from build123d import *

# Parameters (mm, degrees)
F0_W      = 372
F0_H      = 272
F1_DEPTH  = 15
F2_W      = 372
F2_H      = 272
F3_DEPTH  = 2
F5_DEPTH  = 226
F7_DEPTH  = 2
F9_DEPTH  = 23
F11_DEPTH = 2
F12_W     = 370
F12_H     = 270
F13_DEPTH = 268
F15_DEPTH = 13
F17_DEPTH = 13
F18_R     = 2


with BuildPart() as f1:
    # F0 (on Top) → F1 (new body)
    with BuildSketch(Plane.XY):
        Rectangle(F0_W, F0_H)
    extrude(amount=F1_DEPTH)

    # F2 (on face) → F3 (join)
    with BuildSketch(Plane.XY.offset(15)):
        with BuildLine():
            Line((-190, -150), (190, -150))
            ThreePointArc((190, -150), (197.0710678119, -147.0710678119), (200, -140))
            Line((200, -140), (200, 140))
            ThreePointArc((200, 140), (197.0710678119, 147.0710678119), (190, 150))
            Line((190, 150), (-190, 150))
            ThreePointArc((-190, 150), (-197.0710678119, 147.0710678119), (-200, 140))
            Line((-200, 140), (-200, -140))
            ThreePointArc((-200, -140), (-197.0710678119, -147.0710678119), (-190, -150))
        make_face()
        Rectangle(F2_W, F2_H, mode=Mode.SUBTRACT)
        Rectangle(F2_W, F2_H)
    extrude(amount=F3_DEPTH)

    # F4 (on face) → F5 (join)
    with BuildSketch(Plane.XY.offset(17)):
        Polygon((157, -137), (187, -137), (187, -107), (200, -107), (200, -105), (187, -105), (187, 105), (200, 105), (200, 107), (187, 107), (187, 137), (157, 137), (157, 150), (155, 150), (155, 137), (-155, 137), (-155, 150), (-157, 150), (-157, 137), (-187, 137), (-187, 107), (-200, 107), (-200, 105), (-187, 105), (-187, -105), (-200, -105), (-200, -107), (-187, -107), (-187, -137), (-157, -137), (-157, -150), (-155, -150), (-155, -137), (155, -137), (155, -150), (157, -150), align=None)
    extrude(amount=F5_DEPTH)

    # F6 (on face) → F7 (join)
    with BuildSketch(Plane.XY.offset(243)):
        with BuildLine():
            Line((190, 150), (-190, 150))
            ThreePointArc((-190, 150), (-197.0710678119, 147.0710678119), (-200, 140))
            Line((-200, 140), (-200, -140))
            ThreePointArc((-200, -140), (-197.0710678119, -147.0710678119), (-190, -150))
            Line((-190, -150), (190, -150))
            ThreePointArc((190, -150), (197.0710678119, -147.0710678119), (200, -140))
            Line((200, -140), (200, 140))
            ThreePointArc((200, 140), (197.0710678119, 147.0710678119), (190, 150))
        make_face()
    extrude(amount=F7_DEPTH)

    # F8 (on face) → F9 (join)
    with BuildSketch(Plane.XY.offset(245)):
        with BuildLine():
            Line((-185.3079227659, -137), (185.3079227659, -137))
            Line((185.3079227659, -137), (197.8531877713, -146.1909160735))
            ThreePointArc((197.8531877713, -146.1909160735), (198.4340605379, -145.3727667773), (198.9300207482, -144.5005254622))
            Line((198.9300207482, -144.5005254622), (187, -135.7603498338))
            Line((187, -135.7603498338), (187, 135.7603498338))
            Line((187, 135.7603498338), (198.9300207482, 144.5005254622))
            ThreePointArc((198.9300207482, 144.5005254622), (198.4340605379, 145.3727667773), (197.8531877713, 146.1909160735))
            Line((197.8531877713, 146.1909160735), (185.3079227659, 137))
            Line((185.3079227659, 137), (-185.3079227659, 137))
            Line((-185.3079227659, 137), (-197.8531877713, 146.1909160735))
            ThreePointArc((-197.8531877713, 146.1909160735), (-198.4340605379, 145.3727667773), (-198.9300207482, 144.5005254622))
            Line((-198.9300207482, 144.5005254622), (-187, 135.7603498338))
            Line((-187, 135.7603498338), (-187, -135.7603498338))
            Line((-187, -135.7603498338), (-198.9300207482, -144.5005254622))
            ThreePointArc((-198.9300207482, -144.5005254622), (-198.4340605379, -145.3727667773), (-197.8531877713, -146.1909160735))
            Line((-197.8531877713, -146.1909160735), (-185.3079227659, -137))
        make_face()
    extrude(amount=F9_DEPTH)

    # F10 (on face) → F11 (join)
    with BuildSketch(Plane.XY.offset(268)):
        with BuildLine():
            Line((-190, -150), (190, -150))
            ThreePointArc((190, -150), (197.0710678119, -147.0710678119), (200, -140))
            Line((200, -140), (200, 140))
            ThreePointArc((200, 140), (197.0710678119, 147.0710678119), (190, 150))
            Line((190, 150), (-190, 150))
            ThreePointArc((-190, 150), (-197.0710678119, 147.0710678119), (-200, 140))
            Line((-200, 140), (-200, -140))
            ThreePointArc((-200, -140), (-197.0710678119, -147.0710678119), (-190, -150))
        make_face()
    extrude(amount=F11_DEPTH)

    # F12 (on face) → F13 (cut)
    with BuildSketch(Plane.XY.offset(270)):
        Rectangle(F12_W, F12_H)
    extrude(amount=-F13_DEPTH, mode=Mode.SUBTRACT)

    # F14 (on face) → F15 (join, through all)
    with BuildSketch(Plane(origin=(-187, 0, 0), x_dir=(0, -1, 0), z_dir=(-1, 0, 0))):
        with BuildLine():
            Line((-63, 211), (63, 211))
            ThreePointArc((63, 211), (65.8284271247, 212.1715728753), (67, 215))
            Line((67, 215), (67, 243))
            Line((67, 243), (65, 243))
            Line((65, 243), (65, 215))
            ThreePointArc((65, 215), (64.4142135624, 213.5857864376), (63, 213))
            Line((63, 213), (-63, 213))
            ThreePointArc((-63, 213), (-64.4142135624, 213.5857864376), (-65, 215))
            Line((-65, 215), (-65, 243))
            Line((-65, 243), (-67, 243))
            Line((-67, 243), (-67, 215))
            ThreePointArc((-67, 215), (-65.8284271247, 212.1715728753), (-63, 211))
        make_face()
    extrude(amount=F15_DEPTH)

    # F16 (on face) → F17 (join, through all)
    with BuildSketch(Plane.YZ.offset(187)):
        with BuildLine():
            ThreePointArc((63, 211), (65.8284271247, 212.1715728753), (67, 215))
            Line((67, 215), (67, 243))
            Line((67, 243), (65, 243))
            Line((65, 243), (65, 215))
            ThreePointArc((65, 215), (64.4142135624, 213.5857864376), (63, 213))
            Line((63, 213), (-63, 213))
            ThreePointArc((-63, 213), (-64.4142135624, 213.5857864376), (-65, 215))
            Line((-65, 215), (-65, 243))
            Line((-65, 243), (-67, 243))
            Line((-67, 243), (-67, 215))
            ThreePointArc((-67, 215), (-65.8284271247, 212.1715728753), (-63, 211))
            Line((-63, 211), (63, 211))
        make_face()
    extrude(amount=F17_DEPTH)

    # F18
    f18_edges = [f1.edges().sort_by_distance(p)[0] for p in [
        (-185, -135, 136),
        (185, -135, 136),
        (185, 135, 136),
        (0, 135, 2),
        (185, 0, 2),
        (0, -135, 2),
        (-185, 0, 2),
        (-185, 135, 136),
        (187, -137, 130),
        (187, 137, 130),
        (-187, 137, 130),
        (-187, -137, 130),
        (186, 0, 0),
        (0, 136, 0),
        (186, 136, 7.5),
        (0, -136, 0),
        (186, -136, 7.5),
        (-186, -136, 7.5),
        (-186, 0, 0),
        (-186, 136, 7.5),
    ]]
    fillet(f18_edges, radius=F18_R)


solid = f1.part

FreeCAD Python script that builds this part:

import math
import FreeCAD as App
import Part
import Sketcher
from FreeCAD import Vector
Q = App.Units.Quantity


def edges_at(feature, points):
    """Names of the edges that pass closest to the given points."""
    edges = feature.Shape.Edges
    near = lambda p: min(range(len(edges)), key=lambda i: edges[i].distToShape(Part.Vertex(*p))[0])
    return sorted({f"Edge{near(p) + 1}" for p in points})

doc = App.newDocument("Part")
body = doc.addObject("PartDesign::Body", "Body")

sketch1 = body.newObject("Sketcher::SketchObject", "Sketch")
sketch1.AttachmentSupport = (doc.getObject("XY_Plane"), [""])
sketch1.MapMode = "FlatFace"
sketch1.addGeometry([
    Part.LineSegment(Vector(-186, 136, 0), Vector(-186, -136, 0)),
    Part.LineSegment(Vector(-186, -136, 0), Vector(186, -136, 0)),
    Part.LineSegment(Vector(186, -136, 0), Vector(186, 136, 0)),
    Part.LineSegment(Vector(186, 136, 0), Vector(-186, 136, 0)),
], False)
sketch1.addConstraint([
    Sketcher.Constraint("Coincident", 0, 2, 1, 1),
    Sketcher.Constraint("Coincident", 1, 2, 2, 1),
    Sketcher.Constraint("Coincident", 2, 2, 3, 1),
    Sketcher.Constraint("Coincident", 3, 2, 0, 1),
    Sketcher.Constraint("Vertical", 0),
    Sketcher.Constraint("Horizontal", 1),
    Sketcher.Constraint("Vertical", 2),
    Sketcher.Constraint("Horizontal", 3),
    Sketcher.Constraint("Symmetric", 0, 2, 2, 2, -1, 1),
    Sketcher.Constraint("DistanceX", 1, 1, 1, 2, Q("372 mm")),
    Sketcher.Constraint("DistanceY", 0, 2, 0, 1, Q("272 mm")),
])
pad1 = body.newObject("PartDesign::Pad", "Pad")
pad1.Profile = sketch1
pad1.Length = 15

sketch2 = body.newObject("Sketcher::SketchObject", "Sketch001")
sketch2.AttachmentSupport = (doc.getObject("XY_Plane"), [""])
sketch2.MapMode = "FlatFace"
sketch2.AttachmentOffset = App.Placement(Vector(0, 0, 15), App.Rotation())
sketch2.addGeometry([
    Part.LineSegment(Vector(-190, -150, 0), Vector(190, -150, 0)),
    Part.ArcOfCircle(Part.Circle(Vector(190, -140, 0), Vector(0, 0, 1), 10), math.radians(-90), math.radians(0)),
    Part.LineSegment(Vector(200, -140, 0), Vector(200, 140, 0)),
    Part.ArcOfCircle(Part.Circle(Vector(190, 140, 0), Vector(0, 0, 1), 10), math.radians(0), math.radians(90)),
    Part.LineSegment(Vector(190, 150, 0), Vector(-190, 150, 0)),
    Part.ArcOfCircle(Part.Circle(Vector(-190, 140, 0), Vector(0, 0, 1), 10), math.radians(90), math.radians(180)),
    Part.LineSegment(Vector(-200, 140, 0), Vector(-200, -140, 0)),
    Part.ArcOfCircle(Part.Circle(Vector(-190, -140, 0), Vector(0, 0, 1), 10), math.radians(180), math.radians(270)),
], False)
sketch2.addConstraint([
    Sketcher.Constraint("Tangent", 0, 2, 1, 1),
    Sketcher.Constraint("Tangent", 1, 2, 2, 1),
    Sketcher.Constraint("Tangent", 2, 2, 3, 1),
    Sketcher.Constraint("Tangent", 3, 2, 4, 1),
    Sketcher.Constraint("Tangent", 4, 2, 5, 1),
    Sketcher.Constraint("Tangent", 5, 2, 6, 1),
    Sketcher.Constraint("Tangent", 6, 2, 7, 1),
    Sketcher.Constraint("Tangent", 7, 2, 0, 1),
    Sketcher.Constraint("Horizontal", 0),
    Sketcher.Constraint("Vertical", 2),
    Sketcher.Constraint("Horizontal", 4),
    Sketcher.Constraint("Vertical", 6),
    Sketcher.Constraint("Equal", 1, 3),
    Sketcher.Constraint("Equal", 3, 5),
    Sketcher.Constraint("Equal", 5, 7),
    Sketcher.Constraint("Symmetric", 1, 3, 5, 3, -1, 1),
    Sketcher.Constraint("Radius", 1, Q("10 mm")),
    Sketcher.Constraint("DistanceX", 0, 1, 0, 2, Q("380 mm")),
    Sketcher.Constraint("DistanceY", 2, 1, 2, 2, Q("280 mm")),
])
pad2 = body.newObject("PartDesign::Pad", "Pad001")
pad2.Profile = sketch2
pad2.Length = 2

sketch3 = body.newObject("Sketcher::SketchObject", "Sketch002")
sketch3.AttachmentSupport = (doc.getObject("XY_Plane"), [""])
sketch3.MapMode = "FlatFace"
sketch3.AttachmentOffset = App.Placement(Vector(0, 0, 17), App.Rotation())
sketch3.addGeometry([
    Part.LineSegment(Vector(157, -137, 0), Vector(187, -137, 0)),
    Part.LineSegment(Vector(187, -137, 0), Vector(187, -107, 0)),
    Part.LineSegment(Vector(187, -107, 0), Vector(200, -107, 0)),
    Part.LineSegment(Vector(200, -107, 0), Vector(200, -105, 0)),
    Part.LineSegment(Vector(200, -105, 0), Vector(187, -105, 0)),
    Part.LineSegment(Vector(187, -105, 0), Vector(187, 105, 0)),
    Part.LineSegment(Vector(187, 105, 0), Vector(200, 105, 0)),
    Part.LineSegment(Vector(200, 105, 0), Vector(200, 107, 0)),
    Part.LineSegment(Vector(200, 107, 0), Vector(187, 107, 0)),
    Part.LineSegment(Vector(187, 107, 0), Vector(187, 137, 0)),
    Part.LineSegment(Vector(187, 137, 0), Vector(157, 137, 0)),
    Part.LineSegment(Vector(157, 137, 0), Vector(157, 150, 0)),
    Part.LineSegment(Vector(157, 150, 0), Vector(155, 150, 0)),
    Part.LineSegment(Vector(155, 150, 0), Vector(155, 137, 0)),
    Part.LineSegment(Vector(155, 137, 0), Vector(-155, 137, 0)),
    Part.LineSegment(Vector(-155, 137, 0), Vector(-155, 150, 0)),
    Part.LineSegment(Vector(-155, 150, 0), Vector(-157, 150, 0)),
    Part.LineSegment(Vector(-157, 150, 0), Vector(-157, 137, 0)),
    Part.LineSegment(Vector(-157, 137, 0), Vector(-187, 137, 0)),
    Part.LineSegment(Vector(-187, 137, 0), Vector(-187, 107, 0)),
    Part.LineSegment(Vector(-187, 107, 0), Vector(-200, 107, 0)),
    Part.LineSegment(Vector(-200, 107, 0), Vector(-200, 105, 0)),
    Part.LineSegment(Vector(-200, 105, 0), Vector(-187, 105, 0)),
    Part.LineSegment(Vector(-187, 105, 0), Vector(-187, -105, 0)),
    Part.LineSegment(Vector(-187, -105, 0), Vector(-200, -105, 0)),
    Part.LineSegment(Vector(-200, -105, 0), Vector(-200, -107, 0)),
    Part.LineSegment(Vector(-200, -107, 0), Vector(-187, -107, 0)),
    Part.LineSegment(Vector(-187, -107, 0), Vector(-187, -137, 0)),
    Part.LineSegment(Vector(-187, -137, 0), Vector(-157, -137, 0)),
    Part.LineSegment(Vector(-157, -137, 0), Vector(-157, -150, 0)),
    Part.LineSegment(Vector(-157, -150, 0), Vector(-155, -150, 0)),
    Part.LineSegment(Vector(-155, -150, 0), Vector(-155, -137, 0)),
    Part.LineSegment(Vector(-155, -137, 0), Vector(155, -137, 0)),
    Part.LineSegment(Vector(155, -137, 0), Vector(155, -150, 0)),
    Part.LineSegment(Vector(155, -150, 0), Vector(157, -150, 0)),
    Part.LineSegment(Vector(157, -150, 0), Vector(157, -137, 0)),
], False)
sketch3.addConstraint([
    Sketcher.Constraint("Coincident", 0, 2, 1, 1),
    Sketcher.Constraint("Coincident", 1, 2, 2, 1),
    Sketcher.Constraint("Coincident", 2, 2, 3, 1),
    Sketcher.Constraint("Coincident", 3, 2, 4, 1),
    Sketcher.Constraint("Coincident", 4, 2, 5, 1),
    Sketcher.Constraint("Coincident", 5, 2, 6, 1),
    Sketcher.Constraint("Coincident", 6, 2, 7, 1),
    Sketcher.Constraint("Coincident", 7, 2, 8, 1),
    Sketcher.Constraint("Coincident", 8, 2, 9, 1),
    Sketcher.Constraint("Coincident", 9, 2, 10, 1),
    Sketcher.Constraint("Coincident", 10, 2, 11, 1),
    Sketcher.Constraint("Coincident", 11, 2, 12, 1),
    Sketcher.Constraint("Coincident", 12, 2, 13, 1),
    Sketcher.Constraint("Coincident", 13, 2, 14, 1),
    Sketcher.Constraint("Coincident", 14, 2, 15, 1),
    Sketcher.Constraint("Coincident", 15, 2, 16, 1),
    Sketcher.Constraint("Coincident", 16, 2, 17, 1),
    Sketcher.Constraint("Coincident", 17, 2, 18, 1),
    Sketcher.Constraint("Coincident", 18, 2, 19, 1),
    Sketcher.Constraint("Coincident", 19, 2, 20, 1),
    Sketcher.Constraint("Coincident", 20, 2, 21, 1),
    Sketcher.Constraint("Coincident", 21, 2, 22, 1),
    Sketcher.Constraint("Coincident", 22, 2, 23, 1),
    Sketcher.Constraint("Coincident", 23, 2, 24, 1),
    Sketcher.Constraint("Coincident", 24, 2, 25, 1),
    Sketcher.Constraint("Coincident", 25, 2, 26, 1),
    Sketcher.Constraint("Coincident", 26, 2, 27, 1),
    Sketcher.Constraint("Coincident", 27, 2, 28, 1),
    Sketcher.Constraint("Coincident", 28, 2, 29, 1),
    Sketcher.Constraint("Coincident", 29, 2, 30, 1),
    Sketcher.Constraint("Coincident", 30, 2, 31, 1),
    Sketcher.Constraint("Coincident", 31, 2, 32, 1),
    Sketcher.Constraint("Coincident", 32, 2, 33, 1),
    Sketcher.Constraint("Coincident", 33, 2, 34, 1),
    Sketcher.Constraint("Coincident", 34, 2, 35, 1),
    Sketcher.Constraint("Coincident", 35, 2, 0, 1),
    Sketcher.Constraint("Horizontal", 0),
    Sketcher.Constraint("Vertical", 1),
    Sketcher.Constraint("Horizontal", 2),
    Sketcher.Constraint("Vertical", 3),
    Sketcher.Constraint("Horizontal", 4),
    Sketcher.Constraint("Vertical", 5),
    Sketcher.Constraint("Horizontal", 6),
    Sketcher.Constraint("Vertical", 7),
    Sketcher.Constraint("Horizontal", 8),
    Sketcher.Constraint("Vertical", 9),
    Sketcher.Constraint("Horizontal", 10),
    Sketcher.Constraint("Vertical", 11),
    Sketcher.Constraint("Horizontal", 12),
    Sketcher.Constraint("Vertical", 13),
    Sketcher.Constraint("Horizontal", 14),
    Sketcher.Constraint("Vertical", 15),
    Sketcher.Constraint("Horizontal", 16),
    Sketcher.Constraint("Vertical", 17),
    Sketcher.Constraint("Horizontal", 18),
    Sketcher.Constraint("Vertical", 19),
    Sketcher.Constraint("Horizontal", 20),
    Sketcher.Constraint("Vertical", 21),
    Sketcher.Constraint("Horizontal", 22),
    Sketcher.Constraint("Vertical", 23),
    Sketcher.Constraint("Horizontal", 24),
    Sketcher.Constraint("Vertical", 25),
    Sketcher.Constraint("Horizontal", 26),
    Sketcher.Constraint("Vertical", 27),
    Sketcher.Constraint("Horizontal", 28),
    Sketcher.Constraint("Vertical", 29),
    Sketcher.Constraint("Horizontal", 30),
    Sketcher.Constraint("Vertical", 31),
    Sketcher.Constraint("Horizontal", 32),
    Sketcher.Constraint("Vertical", 33),
    Sketcher.Constraint("Horizontal", 34),
    Sketcher.Constraint("Vertical", 35),
    Sketcher.Constraint("Symmetric", 0, 2, 18, 2, -1, 1),
    Sketcher.Constraint("Symmetric", 2, 2, 20, 2, -1, 1),
    Sketcher.Constraint("Symmetric", 4, 2, 22, 2, -1, 1),
    Sketcher.Constraint("Symmetric", 6, 2, 24, 2, -1, 1),
    Sketcher.Constraint("Symmetric", 8, 2, 26, 2, -1, 1),
    Sketcher.Constraint("Symmetric", 10, 2, 28, 2, -1, 1),
    Sketcher.Constraint("Symmetric", 12, 2, 30, 2, -1, 1),
    Sketcher.Constraint("Symmetric", 14, 2, 32, 2, -1, 1),
    Sketcher.Constraint("Symmetric", 16, 2, 34, 2, -1, 1),
    Sketcher.Constraint("Symmetric", 12, 2, 15, 2, -2),
    Sketcher.Constraint("Symmetric", 10, 2, 17, 2, -2),
    Sketcher.Constraint("Symmetric", 8, 2, 19, 2, -2),
    Sketcher.Constraint("Symmetric", 6, 2, 21, 2, -2),
    Sketcher.Constraint("Horizontal", 10, 2, 13, 2),
    Sketcher.Constraint("Vertical", 1, 2, 4, 2),
    Sketcher.Constraint("Equal", 28, 1),
    Sketcher.Constraint("Equal", 34, 3),
    Sketcher.Constraint("Equal", 26, 11),
    Sketcher.Constraint("DistanceX", 0, 1, 0, 2, Q("30 mm")),
    Sketcher.Constraint("DistanceX", 2, 1, 2, 2, Q("13 mm")),
    Sketcher.Constraint("DistanceX", 12, 2, 12, 1, Q("2 mm")),
    Sketcher.Constraint("DistanceX", 14, 2, 14, 1, Q("310 mm")),
    Sketcher.Constraint("DistanceY", 5, 1, 5, 2, Q("210 mm")),
])
pad3 = body.newObject("PartDesign::Pad", "Pad002")
pad3.Profile = sketch3
pad3.Length = 226

sketch4 = body.newObject("Sketcher::SketchObject", "Sketch003")
sketch4.AttachmentSupport = (doc.getObject("XY_Plane"), [""])
sketch4.MapMode = "FlatFace"
sketch4.AttachmentOffset = App.Placement(Vector(0, 0, 243), App.Rotation())
sketch4.addGeometry([
    Part.LineSegment(Vector(190, 150, 0), Vector(-190, 150, 0)),
    Part.ArcOfCircle(Part.Circle(Vector(-190, 140, 0), Vector(0, 0, 1), 10), math.radians(90), math.radians(180)),
    Part.LineSegment(Vector(-200, 140, 0), Vector(-200, -140, 0)),
    Part.ArcOfCircle(Part.Circle(Vector(-190, -140, 0), Vector(0, 0, 1), 10), math.radians(180), math.radians(270)),
    Part.LineSegment(Vector(-190, -150, 0), Vector(190, -150, 0)),
    Part.ArcOfCircle(Part.Circle(Vector(190, -140, 0), Vector(0, 0, 1), 10), math.radians(-90), math.radians(0)),
    Part.LineSegment(Vector(200, -140, 0), Vector(200, 140, 0)),
    Part.ArcOfCircle(Part.Circle(Vector(190, 140, 0), Vector(0, 0, 1), 10), math.radians(0), math.radians(90)),
], False)
sketch4.addConstraint([
    Sketcher.Constraint("Tangent", 0, 2, 1, 1),
    Sketcher.Constraint("Tangent", 1, 2, 2, 1),
    Sketcher.Constraint("Tangent", 2, 2, 3, 1),
    Sketcher.Constraint("Tangent", 3, 2, 4, 1),
    Sketcher.Constraint("Tangent", 4, 2, 5, 1),
    Sketcher.Constraint("Tangent", 5, 2, 6, 1),
    Sketcher.Constraint("Tangent", 6, 2, 7, 1),
    Sketcher.Constraint("Tangent", 7, 2, 0, 1),
    Sketcher.Constraint("Horizontal", 0),
    Sketcher.Constraint("Vertical", 2),
    Sketcher.Constraint("Horizontal", 4),
    Sketcher.Constraint("Vertical", 6),
    Sketcher.Constraint("Equal", 1, 3),
    Sketcher.Constraint("Equal", 3, 5),
    Sketcher.Constraint("Equal", 5, 7),
    Sketcher.Constraint("Symmetric", 1, 3, 5, 3, -1, 1),
    Sketcher.Constraint("Radius", 1, Q("10 mm")),
    Sketcher.Constraint("DistanceX", 0, 2, 0, 1, Q("380 mm")),
    Sketcher.Constraint("DistanceY", 2, 2, 2, 1, Q("280 mm")),
])
pad4 = body.newObject("PartDesign::Pad", "Pad003")
pad4.Profile = sketch4
pad4.Length = 2

sketch5 = body.newObject("Sketcher::SketchObject", "Sketch004")
sketch5.AttachmentSupport = (doc.getObject("XY_Plane"), [""])
sketch5.MapMode = "FlatFace"
sketch5.AttachmentOffset = App.Placement(Vector(0, 0, 245), App.Rotation())
sketch5.addGeometry([
    Part.LineSegment(Vector(-185.3, -137, 0), Vector(185.3, -137, 0)),
    Part.LineSegment(Vector(185.3, -137, 0), Vector(197.9, -146.2, 0)),
    Part.ArcOfCircle(Part.Circle(Vector(190, -140, 0), Vector(0, 0, 1), 10), math.radians(-38.25), math.radians(-26.75)),
    Part.LineSegment(Vector(198.9, -144.5, 0), Vector(187, -135.8, 0)),
    Part.LineSegment(Vector(187, -135.8, 0), Vector(187, 135.8, 0)),
    Part.LineSegment(Vector(187, 135.8, 0), Vector(198.9, 144.5, 0)),
    Part.ArcOfCircle(Part.Circle(Vector(190, 140, 0), Vector(0, 0, 1), 10), math.radians(26.75), math.radians(38.25)),
    Part.LineSegment(Vector(197.9, 146.2, 0), Vector(185.3, 137, 0)),
    Part.LineSegment(Vector(185.3, 137, 0), Vector(-185.3, 137, 0)),
    Part.LineSegment(Vector(-185.3, 137, 0), Vector(-197.9, 146.2, 0)),
    Part.ArcOfCircle(Part.Circle(Vector(-190, 140, 0), Vector(0, 0, 1), 10), math.radians(141.75), math.radians(153.25)),
    Part.LineSegment(Vector(-198.9, 144.5, 0), Vector(-187, 135.8, 0)),
    Part.LineSegment(Vector(-187, 135.8, 0), Vector(-187, -135.8, 0)),
    Part.LineSegment(Vector(-187, -135.8, 0), Vector(-198.9, -144.5, 0)),
    Part.ArcOfCircle(Part.Circle(Vector(-190, -140, 0), Vector(0, 0, 1), 10), math.radians(-153.25), math.radians(-141.75)),
    Part.LineSegment(Vector(-197.9, -146.2, 0), Vector(-185.3, -137, 0)),
], False)
sketch5.addConstraint([
    Sketcher.Constraint("Coincident", 0, 2, 1, 1),
    Sketcher.Constraint("Coincident", 1, 2, 2, 1),
    Sketcher.Constraint("Coincident", 2, 2, 3, 1),
    Sketcher.Constraint("Coincident", 3, 2, 4, 1),
    Sketcher.Constraint("Coincident", 4, 2, 5, 1),
    Sketcher.Constraint("Coincident", 5, 2, 6, 1),
    Sketcher.Constraint("Coincident", 6, 2, 7, 1),
    Sketcher.Constraint("Coincident", 7, 2, 8, 1),
    Sketcher.Constraint("Coincident", 8, 2, 9, 1),
    Sketcher.Constraint("Coincident", 9, 2, 10, 1),
    Sketcher.Constraint("Coincident", 10, 2, 11, 1),
    Sketcher.Constraint("Coincident", 11, 2, 12, 1),
    Sketcher.Constraint("Coincident", 12, 2, 13, 1),
    Sketcher.Constraint("Coincident", 13, 2, 14, 1),
    Sketcher.Constraint("Coincident", 14, 2, 15, 1),
    Sketcher.Constraint("Coincident", 15, 2, 0, 1),
    Sketcher.Constraint("Horizontal", 0),
    Sketcher.Constraint("Vertical", 4),
    Sketcher.Constraint("Horizontal", 8),
    Sketcher.Constraint("Vertical", 12),
    Sketcher.Constraint("Equal", 2, 6),
    Sketcher.Constraint("Equal", 6, 10),
    Sketcher.Constraint("Equal", 10, 14),
    Sketcher.Constraint("Symmetric", 2, 3, 10, 3, -1, 1),
    Sketcher.Constraint("Symmetric", 6, 3, 14, 3, -1, 1),
    Sketcher.Constraint("Symmetric", 0, 2, 8, 2, -1, 1),
    Sketcher.Constraint("Symmetric", 3, 2, 11, 2, -1, 1),
    Sketcher.Constraint("Symmetric", 6, 3, 10, 3, -2),
    Sketcher.Constraint("Parallel", 1, 3),
    Sketcher.Constraint("Parallel", 5, 7),
    Sketcher.Constraint("Parallel", 3, 9),
    Sketcher.Constraint("Parallel", 9, 11),
    Sketcher.Constraint("Parallel", 7, 13),
    Sketcher.Constraint("Parallel", 13, 15),
    Sketcher.Constraint("Horizontal", 6, 2, 9, 2),
    Sketcher.Constraint("Horizontal", 5, 2, 10, 2),
    Sketcher.Constraint("Horizontal", 4, 2, 11, 2),
    Sketcher.Constraint("Horizontal", 3, 2, 12, 2),
    Sketcher.Constraint("Horizontal", 1, 2, 14, 2),
    Sketcher.Constraint("Radius", 2, Q("10 mm")),
    Sketcher.Constraint("DistanceX", -1, 1, 2, 3, Q("190 mm")),
    Sketcher.Constraint("DistanceY", 2, 3, -1, 1, Q("140 mm")),
    Sketcher.Constraint("DistanceY", 0, 2, -1, 1, Q("137 mm")),
    Sketcher.Constraint("DistanceX", -1, 1, 3, 2, Q("187 mm")),
    Sketcher.Constraint("DistanceY", 4, 1, 4, 2, Q("271.5207 mm")),
    Sketcher.Constraint("Distance", 1, Q("15.55174 mm")),
    Sketcher.Constraint("DistanceX", 0, 1, 0, 2, Q("370.615846 mm")),
])
pad5 = body.newObject("PartDesign::Pad", "Pad004")
pad5.Profile = sketch5
pad5.Length = 23

sketch6 = body.newObject("Sketcher::SketchObject", "Sketch005")
sketch6.AttachmentSupport = (doc.getObject("XY_Plane"), [""])
sketch6.MapMode = "FlatFace"
sketch6.AttachmentOffset = App.Placement(Vector(0, 0, 268), App.Rotation())
sketch6.addGeometry([
    Part.LineSegment(Vector(-190, -150, 0), Vector(190, -150, 0)),
    Part.ArcOfCircle(Part.Circle(Vector(190, -140, 0), Vector(0, 0, 1), 10), math.radians(-90), math.radians(0)),
    Part.LineSegment(Vector(200, -140, 0), Vector(200, 140, 0)),
    Part.ArcOfCircle(Part.Circle(Vector(190, 140, 0), Vector(0, 0, 1), 10), math.radians(0), math.radians(90)),
    Part.LineSegment(Vector(190, 150, 0), Vector(-190, 150, 0)),
    Part.ArcOfCircle(Part.Circle(Vector(-190, 140, 0), Vector(0, 0, 1), 10), math.radians(90), math.radians(180)),
    Part.LineSegment(Vector(-200, 140, 0), Vector(-200, -140, 0)),
    Part.ArcOfCircle(Part.Circle(Vector(-190, -140, 0), Vector(0, 0, 1), 10), math.radians(180), math.radians(270)),
], False)
sketch6.addConstraint([
    Sketcher.Constraint("Tangent", 0, 2, 1, 1),
    Sketcher.Constraint("Tangent", 1, 2, 2, 1),
    Sketcher.Constraint("Tangent", 2, 2, 3, 1),
    Sketcher.Constraint("Tangent", 3, 2, 4, 1),
    Sketcher.Constraint("Tangent", 4, 2, 5, 1),
    Sketcher.Constraint("Tangent", 5, 2, 6, 1),
    Sketcher.Constraint("Tangent", 6, 2, 7, 1),
    Sketcher.Constraint("Tangent", 7, 2, 0, 1),
    Sketcher.Constraint("Horizontal", 0),
    Sketcher.Constraint("Vertical", 2),
    Sketcher.Constraint("Horizontal", 4),
    Sketcher.Constraint("Vertical", 6),
    Sketcher.Constraint("Equal", 1, 3),
    Sketcher.Constraint("Equal", 3, 5),
    Sketcher.Constraint("Equal", 5, 7),
    Sketcher.Constraint("Symmetric", 1, 3, 5, 3, -1, 1),
    Sketcher.Constraint("Radius", 1, Q("10 mm")),
    Sketcher.Constraint("DistanceX", 0, 1, 0, 2, Q("380 mm")),
    Sketcher.Constraint("DistanceY", 2, 1, 2, 2, Q("280 mm")),
])
pad6 = body.newObject("PartDesign::Pad", "Pad005")
pad6.Profile = sketch6
pad6.Length = 2

sketch7 = body.newObject("Sketcher::SketchObject", "Sketch006")
sketch7.AttachmentSupport = (doc.getObject("XY_Plane"), [""])
sketch7.MapMode = "FlatFace"
sketch7.AttachmentOffset = App.Placement(Vector(0, 0, 270), App.Rotation())
sketch7.addGeometry([
    Part.LineSegment(Vector(-185, 135, 0), Vector(-185, -135, 0)),
    Part.LineSegment(Vector(-185, -135, 0), Vector(185, -135, 0)),
    Part.LineSegment(Vector(185, -135, 0), Vector(185, 135, 0)),
    Part.LineSegment(Vector(185, 135, 0), Vector(-185, 135, 0)),
], False)
sketch7.addConstraint([
    Sketcher.Constraint("Coincident", 0, 2, 1, 1),
    Sketcher.Constraint("Coincident", 1, 2, 2, 1),
    Sketcher.Constraint("Coincident", 2, 2, 3, 1),
    Sketcher.Constraint("Coincident", 3, 2, 0, 1),
    Sketcher.Constraint("Vertical", 0),
    Sketcher.Constraint("Horizontal", 1),
    Sketcher.Constraint("Vertical", 2),
    Sketcher.Constraint("Horizontal", 3),
    Sketcher.Constraint("Symmetric", 0, 2, 2, 2, -1, 1),
    Sketcher.Constraint("DistanceX", 1, 1, 1, 2, Q("370 mm")),
    Sketcher.Constraint("DistanceY", 0, 2, 0, 1, Q("270 mm")),
])
pocket1 = body.newObject("PartDesign::Pocket", "Pocket")
pocket1.Profile = sketch7
pocket1.Length = 268

sketch8 = body.newObject("Sketcher::SketchObject", "Sketch007")
sketch8.AttachmentSupport = (doc.getObject("YZ_Plane"), [""])
sketch8.MapMode = "FlatFace"
sketch8.AttachmentOffset = App.Placement(Vector(0, 0, -187), App.Rotation())
sketch8.addGeometry([
    Part.LineSegment(Vector(63, 211, 0), Vector(-63, 211, 0)),
    Part.ArcOfCircle(Part.Circle(Vector(-63, 215, 0), Vector(0, 0, 1), 4), math.radians(180), math.radians(270)),
    Part.LineSegment(Vector(-67, 215, 0), Vector(-67, 243, 0)),
    Part.LineSegment(Vector(-67, 243, 0), Vector(-65, 243, 0)),
    Part.LineSegment(Vector(-65, 243, 0), Vector(-65, 215, 0)),
    Part.ArcOfCircle(Part.Circle(Vector(-63, 215, 0), Vector(0, 0, 1), 2), math.radians(180), math.radians(270)),
    Part.LineSegment(Vector(-63, 213, 0), Vector(63, 213, 0)),
    Part.ArcOfCircle(Part.Circle(Vector(63, 215, 0), Vector(0, 0, 1), 2), math.radians(-90), math.radians(0)),
    Part.LineSegment(Vector(65, 215, 0), Vector(65, 243, 0)),
    Part.LineSegment(Vector(65, 243, 0), Vector(67, 243, 0)),
    Part.LineSegment(Vector(67, 243, 0), Vector(67, 215, 0)),
    Part.ArcOfCircle(Part.Circle(Vector(63, 215, 0), Vector(0, 0, 1), 4), math.radians(-90), math.radians(0)),
], False)
sketch8.addConstraint([
    Sketcher.Constraint("Tangent", 0, 2, 1, 2),
    Sketcher.Constraint("Tangent", 1, 1, 2, 1),
    Sketcher.Constraint("Coincident", 2, 2, 3, 1),
    Sketcher.Constraint("Coincident", 3, 2, 4, 1),
    Sketcher.Constraint("Tangent", 4, 2, 5, 1),
    Sketcher.Constraint("Tangent", 5, 2, 6, 1),
    Sketcher.Constraint("Tangent", 6, 2, 7, 1),
    Sketcher.Constraint("Tangent", 7, 2, 8, 1),
    Sketcher.Constraint("Coincident", 8, 2, 9, 1),
    Sketcher.Constraint("Coincident", 9, 2, 10, 1),
    Sketcher.Constraint("Tangent", 10, 2, 11, 2),
    Sketcher.Constraint("Tangent", 11, 1, 0, 1),
    Sketcher.Constraint("Horizontal", 0),
    Sketcher.Constraint("Vertical", 2),
    Sketcher.Constraint("Horizontal", 3),
    Sketcher.Constraint("Vertical", 4),
    Sketcher.Constraint("Horizontal", 6),
    Sketcher.Constraint("Vertical", 8),
    Sketcher.Constraint("Horizontal", 9),
    Sketcher.Constraint("Vertical", 10),
    Sketcher.Constraint("Coincident", 5, 3, 1, 3),
    Sketcher.Constraint("Coincident", 11, 3, 7, 3),
    Sketcher.Constraint("Equal", 5, 7),
    Sketcher.Constraint("Symmetric", 3, 2, 8, 2, -2),
    Sketcher.Constraint("Radius", 1, Q("4 mm")),
    Sketcher.Constraint("Radius", 5, Q("2 mm")),
    Sketcher.Constraint("DistanceX", 0, 2, 0, 1, Q("126 mm")),
    Sketcher.Constraint("DistanceY", 2, 1, 2, 2, Q("28 mm")),
    Sketcher.Constraint("DistanceY", -1, 1, 1, 3, Q("215 mm")),
])
pad7 = body.newObject("PartDesign::Pad", "Pad006")
pad7.Profile = sketch8
pad7.Length = 13
pad7.Reversed = True

sketch9 = body.newObject("Sketcher::SketchObject", "Sketch008")
sketch9.AttachmentSupport = (doc.getObject("YZ_Plane"), [""])
sketch9.MapMode = "FlatFace"
sketch9.AttachmentOffset = App.Placement(Vector(0, 0, 187), App.Rotation())
sketch9.addGeometry([
    Part.ArcOfCircle(Part.Circle(Vector(63, 215, 0), Vector(0, 0, 1), 4), math.radians(-90), math.radians(0)),
    Part.LineSegment(Vector(67, 215, 0), Vector(67, 243, 0)),
    Part.LineSegment(Vector(67, 243, 0), Vector(65, 243, 0)),
    Part.LineSegment(Vector(65, 243, 0), Vector(65, 215, 0)),
    Part.ArcOfCircle(Part.Circle(Vector(63, 215, 0), Vector(0, 0, 1), 2), math.radians(-90), math.radians(0)),
    Part.LineSegment(Vector(63, 213, 0), Vector(-63, 213, 0)),
    Part.ArcOfCircle(Part.Circle(Vector(-63, 215, 0), Vector(0, 0, 1), 2), math.radians(180), math.radians(270)),
    Part.LineSegment(Vector(-65, 215, 0), Vector(-65, 243, 0)),
    Part.LineSegment(Vector(-65, 243, 0), Vector(-67, 243, 0)),
    Part.LineSegment(Vector(-67, 243, 0), Vector(-67, 215, 0)),
    Part.ArcOfCircle(Part.Circle(Vector(-63, 215, 0), Vector(0, 0, 1), 4), math.radians(180), math.radians(270)),
    Part.LineSegment(Vector(-63, 211, 0), Vector(63, 211, 0)),
], False)
sketch9.addConstraint([
    Sketcher.Constraint("Tangent", 0, 2, 1, 1),
    Sketcher.Constraint("Coincident", 1, 2, 2, 1),
    Sketcher.Constraint("Coincident", 2, 2, 3, 1),
    Sketcher.Constraint("Tangent", 3, 2, 4, 2),
    Sketcher.Constraint("Tangent", 4, 1, 5, 1),
    Sketcher.Constraint("Tangent", 5, 2, 6, 2),
    Sketcher.Constraint("Tangent", 6, 1, 7, 1),
    Sketcher.Constraint("Coincident", 7, 2, 8, 1),
    Sketcher.Constraint("Coincident", 8, 2, 9, 1),
    Sketcher.Constraint("Tangent", 9, 2, 10, 1),
    Sketcher.Constraint("Tangent", 10, 2, 11, 1),
    Sketcher.Constraint("Tangent", 11, 2, 0, 1),
    Sketcher.Constraint("Vertical", 1),
    Sketcher.Constraint("Horizontal", 2),
    Sketcher.Constraint("Vertical", 3),
    Sketcher.Constraint("Horizontal", 5),
    Sketcher.Constraint("Vertical", 7),
    Sketcher.Constraint("Horizontal", 8),
    Sketcher.Constraint("Vertical", 9),
    Sketcher.Constraint("Horizontal", 11),
    Sketcher.Constraint("Coincident", 4, 3, 0, 3),
    Sketcher.Constraint("Coincident", 10, 3, 6, 3),
    Sketcher.Constraint("Equal", 4, 6),
    Sketcher.Constraint("Symmetric", 2, 2, 7, 2, -2),
    Sketcher.Constraint("Radius", 0, Q("4 mm")),
    Sketcher.Constraint("Radius", 4, Q("2 mm")),
    Sketcher.Constraint("DistanceX", 5, 2, 5, 1, Q("126 mm")),
    Sketcher.Constraint("DistanceY", 1, 1, 1, 2, Q("28 mm")),
    Sketcher.Constraint("DistanceY", -1, 1, 0, 3, Q("215 mm")),
])
pad8 = body.newObject("PartDesign::Pad", "Pad007")
pad8.Profile = sketch9
pad8.Length = 13
doc.recompute()

fillet = body.newObject("PartDesign::Fillet", "Fillet")
fillet.Base = (pad8, edges_at(pad8, [
    (-185, -135, 136),
    (185, -135, 136),
    (185, 135, 136),
    (0, 135, 2),
    (185, 0, 2),
    (0, -135, 2),
    (-185, 0, 2),
    (-185, 135, 136),
    (187, -137, 130),
    (187, 137, 130),
    (-187, 137, 130),
    (-187, -137, 130),
    (186, 0, 0),
    (0, 136, 0),
    (186, 136, 7.5),
    (0, -136, 0),
    (186, -136, 7.5),
    (-186, -136, 7.5),
    (-186, 0, 0),
    (-186, 136, 7.5),
]))
fillet.Radius = 2

doc.recompute()
